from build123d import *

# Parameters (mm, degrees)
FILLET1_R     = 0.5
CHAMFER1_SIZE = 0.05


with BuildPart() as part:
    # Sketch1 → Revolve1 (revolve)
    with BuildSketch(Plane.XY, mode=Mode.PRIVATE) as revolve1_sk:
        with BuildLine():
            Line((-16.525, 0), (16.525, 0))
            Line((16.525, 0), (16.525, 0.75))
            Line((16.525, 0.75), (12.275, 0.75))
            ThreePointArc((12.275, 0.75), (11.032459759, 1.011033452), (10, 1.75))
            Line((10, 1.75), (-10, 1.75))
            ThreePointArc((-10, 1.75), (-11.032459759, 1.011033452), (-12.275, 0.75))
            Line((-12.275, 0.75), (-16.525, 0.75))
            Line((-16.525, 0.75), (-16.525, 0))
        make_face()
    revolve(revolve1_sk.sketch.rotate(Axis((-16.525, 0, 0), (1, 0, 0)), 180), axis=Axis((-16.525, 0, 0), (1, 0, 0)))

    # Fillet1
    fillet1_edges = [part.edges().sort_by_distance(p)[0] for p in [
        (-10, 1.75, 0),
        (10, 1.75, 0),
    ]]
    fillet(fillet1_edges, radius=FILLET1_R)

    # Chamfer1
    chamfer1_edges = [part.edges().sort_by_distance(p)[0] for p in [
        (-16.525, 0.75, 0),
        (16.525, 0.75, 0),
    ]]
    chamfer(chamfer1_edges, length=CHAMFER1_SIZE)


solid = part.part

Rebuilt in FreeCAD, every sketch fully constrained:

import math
import FreeCAD as App
import Part
import Sketcher

V = App.Vector
Q = App.Units.Quantity


def edges_at(feature, points):
    """Names of the edges that pass closest to the given points."""
    edges = feature.Shape.Edges
    near = lambda p: min(range(len(edges)), key=lambda i: edges[i].distToShape(Part.Vertex(*p))[0])
    return sorted({f"Edge{near(p) + 1}" for p in points})

doc = App.newDocument("Part")
params = doc.addObject("Spreadsheet::Sheet", "Params")
for row, (alias, value) in enumerate([
    ("sketch1_width", "20 mm"),
    ("sketch1_width2", "33.05 mm"),
    ("sketch1_width3", "4.25 mm"),
    ("sketch1_height", "0.75 mm"),
    ("revolution_angle", "360 deg"),
    ("fillet_radius", "0.5 mm"),
    ("chamfer_size", "0.05 mm"),
], start=1):
    params.set(f"A{row}", alias)
    params.set(f"B{row}", "=" + value)
    params.setAlias(f"B{row}", alias)

body = doc.addObject("PartDesign::Body", "Body")

# Sketch on XY plane
sketch1 = body.newObject("Sketcher::SketchObject", "Sketch")
sketch1.AttachmentSupport = (doc.getObject("XY_Plane"), [""])
sketch1.MapMode = "FlatFace"
sketch1.addGeometry(Part.LineSegment(V(-16.525, 0, 0), V(16.525, 0, 0)), False)
sketch1.addGeometry(Part.LineSegment(V(16.525, 0, 0), V(16.525, 0.75, 0)), False)
sketch1.addGeometry(Part.LineSegment(V(16.525, 0.75, 0), V(12.275, 0.75, 0)), False)
sketch1.addGeometry(Part.ArcOfCircle(Part.Circle(V(12.275, 3.837812, 0), V(0, 0, 1), 3.087812), math.radians(-137.456782), math.radians(-90)), False)
sketch1.addGeometry(Part.LineSegment(V(10, 1.75, 0), V(-10, 1.75, 0)), False)
sketch1.addGeometry(Part.ArcOfCircle(Part.Circle(V(-12.275, 3.837812, 0), V(0, 0, 1), 3.087812), math.radians(-90), math.radians(-42.543218)), False)
sketch1.addGeometry(Part.LineSegment(V(-12.275, 0.75, 0), V(-16.525, 0.75, 0)), False)
sketch1.addGeometry(Part.LineSegment(V(-16.525, 0.75, 0), V(-16.525, 0, 0)), False)
sketch1.addConstraint(Sketcher.Constraint("Coincident", 0, 2, 1, 1))
sketch1.addConstraint(Sketcher.Constraint("Coincident", 1, 2, 2, 1))
sketch1.addConstraint(Sketcher.Constraint("Tangent", 2, 2, 3, 2))
sketch1.addConstraint(Sketcher.Constraint("Coincident", 3, 1, 4, 1))
sketch1.addConstraint(Sketcher.Constraint("Coincident", 4, 2, 5, 2))
sketch1.addConstraint(Sketcher.Constraint("Tangent", 5, 1, 6, 1))
sketch1.addConstraint(Sketcher.Constraint("Coincident", 6, 2, 7, 1))
sketch1.addConstraint(Sketcher.Constraint("Coincident", 7, 2, 0, 1))
sketch1.addConstraint(Sketcher.Constraint("Horizontal", 0))
sketch1.addConstraint(Sketcher.Constraint("Vertical", 1))
sketch1.addConstraint(Sketcher.Constraint("Horizontal", 2))
sketch1.addConstraint(Sketcher.Constraint("Horizontal", 4))
sketch1.addConstraint(Sketcher.Constraint("Horizontal", 6))
sketch1.addConstraint(Sketcher.Constraint("Vertical", 7))
sketch1.addConstraint(Sketcher.Constraint("Equal", 3, 5))
sketch1.addConstraint(Sketcher.Constraint("Symmetric", 0, 2, 7, 2, -1, 1))
sketch1.addConstraint(Sketcher.Constraint("Symmetric", 3, 3, 5, 3, -2))
sketch1.addConstraint(Sketcher.Constraint("DistanceX", 4, 2, 4, 1, Q("20 mm")))
sketch1.addConstraint(Sketcher.Constraint("DistanceY", 2, 2, 3, 1, Q("1 mm")))
sketch1.addConstraint(Sketcher.Constraint("DistanceX", 0, 1, 0, 2, Q("33.05 mm")))
sketch1.addConstraint(Sketcher.Constraint("DistanceX", 2, 2, 2, 1, Q("4.25 mm")))
sketch1.addConstraint(Sketcher.Constraint("DistanceY", 1, 1, 1, 2, Q("0.75 mm")))
sketch1.setExpression("Constraints[17]", "Params.sketch1_width")
sketch1.setExpression("Constraints[19]", "Params.sketch1_width2")
sketch1.setExpression("Constraints[20]", "Params.sketch1_width3")
sketch1.setExpression("Constraints[21]", "Params.sketch1_height")
revolution = body.newObject("PartDesign::Revolution", "Revolution")
revolution.Profile = sketch1
revolution.ReferenceAxis = (sketch1, ["H_Axis"])
revolution.setExpression("Angle", "Params.revolution_angle")
doc.recompute()

fillet = body.newObject("PartDesign::Fillet", "Fillet")
fillet.Base = (revolution, edges_at(revolution, [(-10, 1.75, 0), (10, 1.75, 0)]))
fillet.setExpression("Radius", "Params.fillet_radius")
doc.recompute()

chamfer = body.newObject("PartDesign::Chamfer", "Chamfer")
chamfer.Base = (fillet, edges_at(fillet, [(-16.525, 0.75, 0), (16.525, 0.75, 0)]))
chamfer.setExpression("Size", "Params.chamfer_size")

doc.recompute()
